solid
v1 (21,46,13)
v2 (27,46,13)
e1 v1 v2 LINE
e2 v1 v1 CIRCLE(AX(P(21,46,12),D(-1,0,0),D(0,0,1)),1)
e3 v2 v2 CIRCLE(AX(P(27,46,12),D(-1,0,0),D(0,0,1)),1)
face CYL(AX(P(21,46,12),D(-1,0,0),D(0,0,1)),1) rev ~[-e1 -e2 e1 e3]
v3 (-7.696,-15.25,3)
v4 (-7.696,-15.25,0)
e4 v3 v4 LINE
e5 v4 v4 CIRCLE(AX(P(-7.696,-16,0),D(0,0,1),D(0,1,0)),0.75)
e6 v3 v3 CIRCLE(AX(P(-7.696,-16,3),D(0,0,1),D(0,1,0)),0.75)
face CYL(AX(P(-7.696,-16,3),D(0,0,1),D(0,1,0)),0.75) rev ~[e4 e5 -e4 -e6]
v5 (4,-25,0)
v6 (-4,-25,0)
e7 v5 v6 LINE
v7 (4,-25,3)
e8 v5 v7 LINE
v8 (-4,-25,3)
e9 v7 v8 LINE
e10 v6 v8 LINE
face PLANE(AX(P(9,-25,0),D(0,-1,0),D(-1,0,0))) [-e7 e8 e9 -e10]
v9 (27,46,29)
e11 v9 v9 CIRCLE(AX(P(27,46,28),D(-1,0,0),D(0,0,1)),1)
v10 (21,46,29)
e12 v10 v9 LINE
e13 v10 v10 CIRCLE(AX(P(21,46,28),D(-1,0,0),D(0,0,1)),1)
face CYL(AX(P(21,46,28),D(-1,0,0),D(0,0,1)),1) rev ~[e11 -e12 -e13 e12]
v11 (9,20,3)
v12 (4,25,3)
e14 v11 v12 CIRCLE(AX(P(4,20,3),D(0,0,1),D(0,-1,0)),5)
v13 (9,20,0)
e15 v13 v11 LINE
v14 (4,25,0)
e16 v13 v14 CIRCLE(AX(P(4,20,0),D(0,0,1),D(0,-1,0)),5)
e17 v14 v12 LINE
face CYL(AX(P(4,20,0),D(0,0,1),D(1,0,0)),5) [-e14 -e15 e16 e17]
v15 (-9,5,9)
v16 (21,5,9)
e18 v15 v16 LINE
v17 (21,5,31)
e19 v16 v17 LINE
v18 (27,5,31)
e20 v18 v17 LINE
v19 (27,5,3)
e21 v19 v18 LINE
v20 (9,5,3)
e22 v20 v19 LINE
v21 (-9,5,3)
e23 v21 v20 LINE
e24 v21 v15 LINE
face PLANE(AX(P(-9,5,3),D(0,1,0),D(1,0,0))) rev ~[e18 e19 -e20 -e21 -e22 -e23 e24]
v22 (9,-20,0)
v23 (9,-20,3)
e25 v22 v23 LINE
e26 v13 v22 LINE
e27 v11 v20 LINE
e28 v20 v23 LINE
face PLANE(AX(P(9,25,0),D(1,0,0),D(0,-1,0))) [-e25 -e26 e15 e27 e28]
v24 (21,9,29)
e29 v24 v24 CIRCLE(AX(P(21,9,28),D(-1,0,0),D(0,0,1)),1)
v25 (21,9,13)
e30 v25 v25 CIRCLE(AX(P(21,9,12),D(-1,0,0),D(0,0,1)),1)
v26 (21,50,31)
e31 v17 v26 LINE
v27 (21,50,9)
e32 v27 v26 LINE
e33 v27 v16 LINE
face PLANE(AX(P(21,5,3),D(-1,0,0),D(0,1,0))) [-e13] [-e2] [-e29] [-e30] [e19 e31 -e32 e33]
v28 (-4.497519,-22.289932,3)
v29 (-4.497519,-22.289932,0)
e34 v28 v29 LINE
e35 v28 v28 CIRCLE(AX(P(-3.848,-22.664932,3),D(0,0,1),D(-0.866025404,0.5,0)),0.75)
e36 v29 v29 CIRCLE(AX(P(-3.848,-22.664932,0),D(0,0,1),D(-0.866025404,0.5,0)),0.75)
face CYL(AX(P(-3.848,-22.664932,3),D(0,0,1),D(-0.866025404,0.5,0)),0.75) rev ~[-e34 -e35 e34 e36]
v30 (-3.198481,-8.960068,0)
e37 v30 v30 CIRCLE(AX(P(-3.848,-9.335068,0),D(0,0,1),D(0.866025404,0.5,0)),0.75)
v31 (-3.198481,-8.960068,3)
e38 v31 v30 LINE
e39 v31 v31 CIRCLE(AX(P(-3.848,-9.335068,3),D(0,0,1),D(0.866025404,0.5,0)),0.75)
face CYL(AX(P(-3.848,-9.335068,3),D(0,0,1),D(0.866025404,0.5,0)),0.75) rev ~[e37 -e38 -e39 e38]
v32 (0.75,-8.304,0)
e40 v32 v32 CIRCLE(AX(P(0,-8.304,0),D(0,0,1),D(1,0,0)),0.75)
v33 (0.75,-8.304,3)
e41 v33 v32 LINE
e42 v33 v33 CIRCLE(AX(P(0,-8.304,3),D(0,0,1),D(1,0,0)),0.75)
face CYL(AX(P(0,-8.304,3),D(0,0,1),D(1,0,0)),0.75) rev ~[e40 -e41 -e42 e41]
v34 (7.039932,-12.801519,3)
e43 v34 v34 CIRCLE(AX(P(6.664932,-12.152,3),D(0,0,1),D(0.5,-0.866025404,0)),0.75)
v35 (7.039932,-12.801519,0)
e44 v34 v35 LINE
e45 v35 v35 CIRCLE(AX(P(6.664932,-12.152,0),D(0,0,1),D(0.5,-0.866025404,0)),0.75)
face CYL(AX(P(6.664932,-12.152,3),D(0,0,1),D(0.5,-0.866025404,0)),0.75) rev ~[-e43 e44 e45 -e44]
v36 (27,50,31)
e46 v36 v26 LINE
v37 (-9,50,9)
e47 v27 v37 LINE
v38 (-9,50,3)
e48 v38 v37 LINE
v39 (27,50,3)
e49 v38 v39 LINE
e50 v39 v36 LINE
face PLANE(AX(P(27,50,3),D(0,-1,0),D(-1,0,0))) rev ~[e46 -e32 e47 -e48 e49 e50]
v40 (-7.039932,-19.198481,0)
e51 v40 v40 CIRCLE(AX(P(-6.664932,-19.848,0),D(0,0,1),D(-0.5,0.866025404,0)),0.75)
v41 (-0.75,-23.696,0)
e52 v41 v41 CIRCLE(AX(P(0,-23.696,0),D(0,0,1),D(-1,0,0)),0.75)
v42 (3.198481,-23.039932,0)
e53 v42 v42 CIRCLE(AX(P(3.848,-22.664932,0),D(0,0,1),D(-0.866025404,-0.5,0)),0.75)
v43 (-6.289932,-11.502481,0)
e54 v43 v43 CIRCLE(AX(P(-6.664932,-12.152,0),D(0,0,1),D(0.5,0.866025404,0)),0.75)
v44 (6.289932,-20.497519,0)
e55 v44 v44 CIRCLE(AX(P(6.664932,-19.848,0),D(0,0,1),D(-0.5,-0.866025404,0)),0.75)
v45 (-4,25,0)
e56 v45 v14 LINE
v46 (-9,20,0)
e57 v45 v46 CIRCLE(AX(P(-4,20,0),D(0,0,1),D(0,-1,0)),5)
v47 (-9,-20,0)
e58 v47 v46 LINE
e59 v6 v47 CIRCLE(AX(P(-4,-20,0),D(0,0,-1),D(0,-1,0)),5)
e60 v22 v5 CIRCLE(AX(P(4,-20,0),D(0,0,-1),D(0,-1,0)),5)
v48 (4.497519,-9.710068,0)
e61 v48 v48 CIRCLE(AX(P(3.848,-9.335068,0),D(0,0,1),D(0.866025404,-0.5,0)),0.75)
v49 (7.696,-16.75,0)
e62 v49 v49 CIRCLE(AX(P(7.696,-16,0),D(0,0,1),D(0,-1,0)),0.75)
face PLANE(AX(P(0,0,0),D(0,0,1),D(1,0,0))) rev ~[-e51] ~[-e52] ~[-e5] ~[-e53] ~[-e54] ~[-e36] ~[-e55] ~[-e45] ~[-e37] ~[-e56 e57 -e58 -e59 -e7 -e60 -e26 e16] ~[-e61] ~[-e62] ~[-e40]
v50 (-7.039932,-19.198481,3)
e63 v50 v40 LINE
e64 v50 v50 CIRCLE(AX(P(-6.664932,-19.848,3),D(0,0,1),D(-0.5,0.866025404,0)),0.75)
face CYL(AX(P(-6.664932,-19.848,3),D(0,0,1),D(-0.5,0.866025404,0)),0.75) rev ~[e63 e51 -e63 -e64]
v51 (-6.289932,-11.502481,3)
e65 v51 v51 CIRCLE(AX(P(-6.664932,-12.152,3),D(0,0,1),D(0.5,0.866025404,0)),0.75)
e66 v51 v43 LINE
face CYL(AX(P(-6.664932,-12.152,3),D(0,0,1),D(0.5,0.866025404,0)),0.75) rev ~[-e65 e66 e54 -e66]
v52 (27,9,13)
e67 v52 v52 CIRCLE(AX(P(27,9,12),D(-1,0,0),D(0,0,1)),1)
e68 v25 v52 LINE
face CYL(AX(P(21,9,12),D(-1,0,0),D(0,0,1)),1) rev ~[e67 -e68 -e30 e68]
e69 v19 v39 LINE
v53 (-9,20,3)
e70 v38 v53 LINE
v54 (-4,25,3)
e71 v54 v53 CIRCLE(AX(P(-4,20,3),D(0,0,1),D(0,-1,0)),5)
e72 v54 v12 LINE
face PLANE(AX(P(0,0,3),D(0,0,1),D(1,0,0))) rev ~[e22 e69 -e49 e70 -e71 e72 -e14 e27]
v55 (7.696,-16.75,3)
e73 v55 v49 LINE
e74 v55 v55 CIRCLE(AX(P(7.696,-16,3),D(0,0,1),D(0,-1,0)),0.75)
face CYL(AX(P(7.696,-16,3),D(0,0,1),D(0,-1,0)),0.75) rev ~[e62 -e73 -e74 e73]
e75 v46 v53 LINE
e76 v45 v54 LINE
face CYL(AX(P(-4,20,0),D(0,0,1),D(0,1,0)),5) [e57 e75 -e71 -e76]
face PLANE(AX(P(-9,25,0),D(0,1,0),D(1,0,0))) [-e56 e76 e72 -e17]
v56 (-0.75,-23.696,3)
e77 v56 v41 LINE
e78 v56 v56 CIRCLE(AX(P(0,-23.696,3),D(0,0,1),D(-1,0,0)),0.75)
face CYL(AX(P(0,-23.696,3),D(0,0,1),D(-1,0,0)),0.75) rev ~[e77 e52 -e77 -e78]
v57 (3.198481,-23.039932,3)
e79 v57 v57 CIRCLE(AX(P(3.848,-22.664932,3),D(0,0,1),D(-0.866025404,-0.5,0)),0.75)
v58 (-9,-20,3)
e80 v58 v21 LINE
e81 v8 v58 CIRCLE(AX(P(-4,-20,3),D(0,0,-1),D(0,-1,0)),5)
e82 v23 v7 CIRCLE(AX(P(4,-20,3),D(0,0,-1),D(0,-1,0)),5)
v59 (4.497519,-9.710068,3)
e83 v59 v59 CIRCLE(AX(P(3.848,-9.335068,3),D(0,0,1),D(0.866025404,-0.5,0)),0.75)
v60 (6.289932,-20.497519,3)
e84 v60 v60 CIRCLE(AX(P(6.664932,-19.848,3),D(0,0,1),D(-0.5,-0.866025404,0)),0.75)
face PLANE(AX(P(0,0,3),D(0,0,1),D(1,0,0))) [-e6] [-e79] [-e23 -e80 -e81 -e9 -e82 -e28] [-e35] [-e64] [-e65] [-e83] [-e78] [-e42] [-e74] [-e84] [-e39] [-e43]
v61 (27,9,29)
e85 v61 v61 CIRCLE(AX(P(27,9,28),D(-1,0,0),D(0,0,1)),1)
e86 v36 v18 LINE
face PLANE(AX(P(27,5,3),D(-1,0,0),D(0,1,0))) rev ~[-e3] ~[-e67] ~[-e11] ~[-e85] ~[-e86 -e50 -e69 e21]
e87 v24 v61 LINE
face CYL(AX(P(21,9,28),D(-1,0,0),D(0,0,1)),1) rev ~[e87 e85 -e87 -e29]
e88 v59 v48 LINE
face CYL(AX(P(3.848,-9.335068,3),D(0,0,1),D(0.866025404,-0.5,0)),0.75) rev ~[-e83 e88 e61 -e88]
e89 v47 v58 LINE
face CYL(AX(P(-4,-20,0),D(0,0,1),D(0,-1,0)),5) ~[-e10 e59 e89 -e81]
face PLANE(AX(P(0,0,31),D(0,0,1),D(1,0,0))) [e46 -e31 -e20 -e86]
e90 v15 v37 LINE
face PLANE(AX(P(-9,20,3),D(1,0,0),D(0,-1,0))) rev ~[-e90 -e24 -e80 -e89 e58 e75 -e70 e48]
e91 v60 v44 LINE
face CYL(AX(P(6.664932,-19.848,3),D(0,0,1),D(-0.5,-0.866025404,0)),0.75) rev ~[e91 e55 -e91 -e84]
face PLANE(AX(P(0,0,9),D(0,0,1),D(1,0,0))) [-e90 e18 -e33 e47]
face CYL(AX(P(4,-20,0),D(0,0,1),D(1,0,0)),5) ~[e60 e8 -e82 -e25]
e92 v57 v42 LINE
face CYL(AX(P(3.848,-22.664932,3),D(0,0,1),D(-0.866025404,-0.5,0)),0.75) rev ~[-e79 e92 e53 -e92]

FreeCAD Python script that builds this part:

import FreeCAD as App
import Part
import Sketcher
Q = App.Units.Quantity


def edges_at(feature, points):
    """Names of the edges that pass closest to the given points."""
    edges = feature.Shape.Edges
    near = lambda p: min(range(len(edges)), key=lambda i: edges[i].distToShape(Part.Vertex(*p))[0])
    return sorted({f"Edge{near(p) + 1}" for p in points})

doc = App.newDocument("Part")
body = doc.addObject("PartDesign::Body", "Body")

sketch1 = body.newObject("Sketcher::SketchObject", "Sketch")
sketch1.AttachmentSupport = (doc.getObject("XY_Plane"), [""])
sketch1.MapMode = "FlatFace"
sketch1.addGeometry([
    Part.LineSegment(App.Vector(9, 25, 0), App.Vector(-9, 25, 0)),
    Part.LineSegment(App.Vector(-9, 25, 0), App.Vector(-9, -25, 0)),
    Part.LineSegment(App.Vector(-9, -25, 0), App.Vector(9, -25, 0)),
    Part.LineSegment(App.Vector(9, -25, 0), App.Vector(9, 25, 0)),
], False)
sketch1.addConstraint([
    Sketcher.Constraint("Coincident", 0, 2, 1, 1),
    Sketcher.Constraint("Coincident", 1, 2, 2, 1),
    Sketcher.Constraint("Coincident", 2, 2, 3, 1),
    Sketcher.Constraint("Coincident", 3, 2, 0, 1),
    Sketcher.Constraint("Horizontal", 0),
    Sketcher.Constraint("Vertical", 1),
    Sketcher.Constraint("Horizontal", 2),
    Sketcher.Constraint("Vertical", 3),
    Sketcher.Constraint("Symmetric", 0, 2, 2, 2, -1, 1),
    Sketcher.Constraint("DistanceX", 0, 2, 0, 1, Q("18 mm")),
    Sketcher.Constraint("DistanceY", 1, 2, 1, 1, Q("50 mm")),
])
pad1 = body.newObject("PartDesign::Pad", "Pad")
pad1.Profile = sketch1
pad1.Length = 3
doc.recompute()

fillet = body.newObject("PartDesign::Fillet", "Fillet")
fillet.Base = (pad1, edges_at(pad1, [(-9, -25, 1.5), (9, -25, 1.5)]))
fillet.Radius = 5
doc.recompute()

fillet2 = body.newObject("PartDesign::Fillet", "Fillet001")
fillet2.Base = (fillet, edges_at(fillet, [(-9, 25, 1.5), (9, 25, 1.5)]))
fillet2.Radius = 5

sketch2 = body.newObject("Sketcher::SketchObject", "Sketch001")
sketch2.AttachmentSupport = (doc.getObject("XY_Plane"), [""])
sketch2.MapMode = "FlatFace"
sketch2.AttachmentOffset = App.Placement(App.Vector(0, 0, 3), App.Rotation())
sketch2.addGeometry(Part.Circle(App.Vector(0, -8.3, 0), App.Vector(0, 0, 1), 0.8), False)
sketch2.addConstraint([
    Sketcher.Constraint("PointOnObject", 0, 3, -2),
    Sketcher.Constraint("Diameter", 0, Q("1.5 mm")),
    Sketcher.Constraint("DistanceY", 0, 3, -1, 1, Q("8.304 mm")),
])
pocket1 = body.newObject("PartDesign::Pocket", "Pocket")
pocket1.Profile = sketch2
pocket1.Length = 3
doc.recompute()

datumline = body.newObject("PartDesign::Line", "DatumLine")
datumline.Placement = App.Placement(App.Vector(0, -16, 0), App.Rotation(App.Vector(0, 0, 1), App.Vector(0, 0, 1)))
polarpattern = body.newObject("PartDesign::PolarPattern", "PolarPattern")
polarpattern.Originals = [pocket1]
polarpattern.Axis = (datumline, [""])
polarpattern.Angle = 360
polarpattern.Occurrences = 12
body.Tip = polarpattern

sketch3 = body.newObject("Sketcher::SketchObject", "Sketch002")
sketch3.AttachmentSupport = (doc.getObject("XY_Plane"), [""])
sketch3.MapMode = "FlatFace"
sketch3.AttachmentOffset = App.Placement(App.Vector(0, 0, 3), App.Rotation())
sketch3.addGeometry([
    Part.LineSegment(App.Vector(-9, 50, 0), App.Vector(-9, 5, 0)),
    Part.LineSegment(App.Vector(-9, 5, 0), App.Vector(27, 5, 0)),
    Part.LineSegment(App.Vector(27, 5, 0), App.Vector(27, 50, 0)),
    Part.LineSegment(App.Vector(27, 50, 0), App.Vector(-9, 50, 0)),
], False)
sketch3.addConstraint([
    Sketcher.Constraint("Coincident", 0, 2, 1, 1),
    Sketcher.Constraint("Coincident", 1, 2, 2, 1),
    Sketcher.Constraint("Coincident", 2, 2, 3, 1),
    Sketcher.Constraint("Coincident", 3, 2, 0, 1),
    Sketcher.Constraint("Vertical", 0),
    Sketcher.Constraint("Horizontal", 1),
    Sketcher.Constraint("Vertical", 2),
    Sketcher.Constraint("Horizontal", 3),
    Sketcher.Constraint("DistanceX", 1, 1, 1, 2, Q("36 mm")),
    Sketcher.Constraint("DistanceY", 0, 2, 0, 1, Q("45 mm")),
    Sketcher.Constraint("DistanceX", 0, 2, -1, 1, Q("9 mm")),
    Sketcher.Constraint("DistanceY", -1, 1, 0, 2, Q("5 mm")),
])
pad2 = body.newObject("PartDesign::Pad", "Pad001")
pad2.Profile = sketch3
pad2.Length = 6

sketch4 = body.newObject("Sketcher::SketchObject", "Sketch003")
sketch4.AttachmentSupport = (doc.getObject("XY_Plane"), [""])
sketch4.MapMode = "FlatFace"
sketch4.AttachmentOffset = App.Placement(App.Vector(0, 0, 3), App.Rotation())
sketch4.addGeometry([
    Part.LineSegment(App.Vector(27, 5, 0), App.Vector(27, 50, 0)),
    Part.LineSegment(App.Vector(27, 50, 0), App.Vector(21, 50, 0)),
    Part.LineSegment(App.Vector(21, 50, 0), App.Vector(21, 5, 0)),
    Part.LineSegment(App.Vector(21, 5, 0), App.Vector(27, 5, 0)),
], False)
sketch4.addConstraint([
    Sketcher.Constraint("Coincident", 0, 2, 1, 1),
    Sketcher.Constraint("Coincident", 1, 2, 2, 1),
    Sketcher.Constraint("Coincident", 2, 2, 3, 1),
    Sketcher.Constraint("Coincident", 3, 2, 0, 1),
    Sketcher.Constraint("Vertical", 0),
    Sketcher.Constraint("Horizontal", 1),
    Sketcher.Constraint("Vertical", 2),
    Sketcher.Constraint("Horizontal", 3),
    Sketcher.Constraint("DistanceX", 1, 2, 1, 1, Q("6 mm")),
    Sketcher.Constraint("DistanceY", 0, 1, 0, 2, Q("45 mm")),
    Sketcher.Constraint("DistanceX", -1, 1, 0, 2, Q("27 mm")),
    Sketcher.Constraint("DistanceY", -1, 1, 0, 2, Q("50 mm")),
])
pad3 = body.newObject("PartDesign::Pad", "Pad002")
pad3.Profile = sketch4
pad3.Length = 28

sketch5 = body.newObject("Sketcher::SketchObject", "Sketch004")
sketch5.AttachmentSupport = (doc.getObject("YZ_Plane"), [""])
sketch5.MapMode = "FlatFace"
sketch5.AttachmentOffset = App.Placement(App.Vector(0, 0, 21), App.Rotation())
sketch5.addGeometry([
    Part.Circle(App.Vector(9, 28, 0), App.Vector(0, 0, 1), 1),
    Part.Circle(App.Vector(9, 12, 0), App.Vector(0, 0, 1), 1),
    Part.Circle(App.Vector(46, 28, 0), App.Vector(0, 0, 1), 1),
    Part.Circle(App.Vector(46, 12, 0), App.Vector(0, 0, 1), 1),
], False)
sketch5.addConstraint([
    Sketcher.Constraint("Equal", 0, 1),
    Sketcher.Constraint("Equal", 1, 2),
    Sketcher.Constraint("Equal", 2, 3),
    Sketcher.Constraint("Horizontal", 0, 3, 2, 3),
    Sketcher.Constraint("Horizontal", 1, 3, 3, 3),
    Sketcher.Constraint("Vertical", 0, 3, 1, 3),
    Sketcher.Constraint("Vertical", 2, 3, 3, 3),
    Sketcher.Constraint("Diameter", 0, Q("2 mm")),
    Sketcher.Constraint("DistanceY", 1, 3, 0, 3, Q("16 mm")),
    Sketcher.Constraint("DistanceX", 0, 3, 2, 3, Q("37 mm")),
    Sketcher.Constraint("DistanceX", -1, 1, 0, 3, Q("9 mm")),
    Sketcher.Constraint("DistanceY", -1, 1, 0, 3, Q("28 mm")),
])
pocket2 = body.newObject("PartDesign::Pocket", "Pocket001")
pocket2.Profile = sketch5
pocket2.Length = 6
pocket2.Reversed = True

doc.recompute()
